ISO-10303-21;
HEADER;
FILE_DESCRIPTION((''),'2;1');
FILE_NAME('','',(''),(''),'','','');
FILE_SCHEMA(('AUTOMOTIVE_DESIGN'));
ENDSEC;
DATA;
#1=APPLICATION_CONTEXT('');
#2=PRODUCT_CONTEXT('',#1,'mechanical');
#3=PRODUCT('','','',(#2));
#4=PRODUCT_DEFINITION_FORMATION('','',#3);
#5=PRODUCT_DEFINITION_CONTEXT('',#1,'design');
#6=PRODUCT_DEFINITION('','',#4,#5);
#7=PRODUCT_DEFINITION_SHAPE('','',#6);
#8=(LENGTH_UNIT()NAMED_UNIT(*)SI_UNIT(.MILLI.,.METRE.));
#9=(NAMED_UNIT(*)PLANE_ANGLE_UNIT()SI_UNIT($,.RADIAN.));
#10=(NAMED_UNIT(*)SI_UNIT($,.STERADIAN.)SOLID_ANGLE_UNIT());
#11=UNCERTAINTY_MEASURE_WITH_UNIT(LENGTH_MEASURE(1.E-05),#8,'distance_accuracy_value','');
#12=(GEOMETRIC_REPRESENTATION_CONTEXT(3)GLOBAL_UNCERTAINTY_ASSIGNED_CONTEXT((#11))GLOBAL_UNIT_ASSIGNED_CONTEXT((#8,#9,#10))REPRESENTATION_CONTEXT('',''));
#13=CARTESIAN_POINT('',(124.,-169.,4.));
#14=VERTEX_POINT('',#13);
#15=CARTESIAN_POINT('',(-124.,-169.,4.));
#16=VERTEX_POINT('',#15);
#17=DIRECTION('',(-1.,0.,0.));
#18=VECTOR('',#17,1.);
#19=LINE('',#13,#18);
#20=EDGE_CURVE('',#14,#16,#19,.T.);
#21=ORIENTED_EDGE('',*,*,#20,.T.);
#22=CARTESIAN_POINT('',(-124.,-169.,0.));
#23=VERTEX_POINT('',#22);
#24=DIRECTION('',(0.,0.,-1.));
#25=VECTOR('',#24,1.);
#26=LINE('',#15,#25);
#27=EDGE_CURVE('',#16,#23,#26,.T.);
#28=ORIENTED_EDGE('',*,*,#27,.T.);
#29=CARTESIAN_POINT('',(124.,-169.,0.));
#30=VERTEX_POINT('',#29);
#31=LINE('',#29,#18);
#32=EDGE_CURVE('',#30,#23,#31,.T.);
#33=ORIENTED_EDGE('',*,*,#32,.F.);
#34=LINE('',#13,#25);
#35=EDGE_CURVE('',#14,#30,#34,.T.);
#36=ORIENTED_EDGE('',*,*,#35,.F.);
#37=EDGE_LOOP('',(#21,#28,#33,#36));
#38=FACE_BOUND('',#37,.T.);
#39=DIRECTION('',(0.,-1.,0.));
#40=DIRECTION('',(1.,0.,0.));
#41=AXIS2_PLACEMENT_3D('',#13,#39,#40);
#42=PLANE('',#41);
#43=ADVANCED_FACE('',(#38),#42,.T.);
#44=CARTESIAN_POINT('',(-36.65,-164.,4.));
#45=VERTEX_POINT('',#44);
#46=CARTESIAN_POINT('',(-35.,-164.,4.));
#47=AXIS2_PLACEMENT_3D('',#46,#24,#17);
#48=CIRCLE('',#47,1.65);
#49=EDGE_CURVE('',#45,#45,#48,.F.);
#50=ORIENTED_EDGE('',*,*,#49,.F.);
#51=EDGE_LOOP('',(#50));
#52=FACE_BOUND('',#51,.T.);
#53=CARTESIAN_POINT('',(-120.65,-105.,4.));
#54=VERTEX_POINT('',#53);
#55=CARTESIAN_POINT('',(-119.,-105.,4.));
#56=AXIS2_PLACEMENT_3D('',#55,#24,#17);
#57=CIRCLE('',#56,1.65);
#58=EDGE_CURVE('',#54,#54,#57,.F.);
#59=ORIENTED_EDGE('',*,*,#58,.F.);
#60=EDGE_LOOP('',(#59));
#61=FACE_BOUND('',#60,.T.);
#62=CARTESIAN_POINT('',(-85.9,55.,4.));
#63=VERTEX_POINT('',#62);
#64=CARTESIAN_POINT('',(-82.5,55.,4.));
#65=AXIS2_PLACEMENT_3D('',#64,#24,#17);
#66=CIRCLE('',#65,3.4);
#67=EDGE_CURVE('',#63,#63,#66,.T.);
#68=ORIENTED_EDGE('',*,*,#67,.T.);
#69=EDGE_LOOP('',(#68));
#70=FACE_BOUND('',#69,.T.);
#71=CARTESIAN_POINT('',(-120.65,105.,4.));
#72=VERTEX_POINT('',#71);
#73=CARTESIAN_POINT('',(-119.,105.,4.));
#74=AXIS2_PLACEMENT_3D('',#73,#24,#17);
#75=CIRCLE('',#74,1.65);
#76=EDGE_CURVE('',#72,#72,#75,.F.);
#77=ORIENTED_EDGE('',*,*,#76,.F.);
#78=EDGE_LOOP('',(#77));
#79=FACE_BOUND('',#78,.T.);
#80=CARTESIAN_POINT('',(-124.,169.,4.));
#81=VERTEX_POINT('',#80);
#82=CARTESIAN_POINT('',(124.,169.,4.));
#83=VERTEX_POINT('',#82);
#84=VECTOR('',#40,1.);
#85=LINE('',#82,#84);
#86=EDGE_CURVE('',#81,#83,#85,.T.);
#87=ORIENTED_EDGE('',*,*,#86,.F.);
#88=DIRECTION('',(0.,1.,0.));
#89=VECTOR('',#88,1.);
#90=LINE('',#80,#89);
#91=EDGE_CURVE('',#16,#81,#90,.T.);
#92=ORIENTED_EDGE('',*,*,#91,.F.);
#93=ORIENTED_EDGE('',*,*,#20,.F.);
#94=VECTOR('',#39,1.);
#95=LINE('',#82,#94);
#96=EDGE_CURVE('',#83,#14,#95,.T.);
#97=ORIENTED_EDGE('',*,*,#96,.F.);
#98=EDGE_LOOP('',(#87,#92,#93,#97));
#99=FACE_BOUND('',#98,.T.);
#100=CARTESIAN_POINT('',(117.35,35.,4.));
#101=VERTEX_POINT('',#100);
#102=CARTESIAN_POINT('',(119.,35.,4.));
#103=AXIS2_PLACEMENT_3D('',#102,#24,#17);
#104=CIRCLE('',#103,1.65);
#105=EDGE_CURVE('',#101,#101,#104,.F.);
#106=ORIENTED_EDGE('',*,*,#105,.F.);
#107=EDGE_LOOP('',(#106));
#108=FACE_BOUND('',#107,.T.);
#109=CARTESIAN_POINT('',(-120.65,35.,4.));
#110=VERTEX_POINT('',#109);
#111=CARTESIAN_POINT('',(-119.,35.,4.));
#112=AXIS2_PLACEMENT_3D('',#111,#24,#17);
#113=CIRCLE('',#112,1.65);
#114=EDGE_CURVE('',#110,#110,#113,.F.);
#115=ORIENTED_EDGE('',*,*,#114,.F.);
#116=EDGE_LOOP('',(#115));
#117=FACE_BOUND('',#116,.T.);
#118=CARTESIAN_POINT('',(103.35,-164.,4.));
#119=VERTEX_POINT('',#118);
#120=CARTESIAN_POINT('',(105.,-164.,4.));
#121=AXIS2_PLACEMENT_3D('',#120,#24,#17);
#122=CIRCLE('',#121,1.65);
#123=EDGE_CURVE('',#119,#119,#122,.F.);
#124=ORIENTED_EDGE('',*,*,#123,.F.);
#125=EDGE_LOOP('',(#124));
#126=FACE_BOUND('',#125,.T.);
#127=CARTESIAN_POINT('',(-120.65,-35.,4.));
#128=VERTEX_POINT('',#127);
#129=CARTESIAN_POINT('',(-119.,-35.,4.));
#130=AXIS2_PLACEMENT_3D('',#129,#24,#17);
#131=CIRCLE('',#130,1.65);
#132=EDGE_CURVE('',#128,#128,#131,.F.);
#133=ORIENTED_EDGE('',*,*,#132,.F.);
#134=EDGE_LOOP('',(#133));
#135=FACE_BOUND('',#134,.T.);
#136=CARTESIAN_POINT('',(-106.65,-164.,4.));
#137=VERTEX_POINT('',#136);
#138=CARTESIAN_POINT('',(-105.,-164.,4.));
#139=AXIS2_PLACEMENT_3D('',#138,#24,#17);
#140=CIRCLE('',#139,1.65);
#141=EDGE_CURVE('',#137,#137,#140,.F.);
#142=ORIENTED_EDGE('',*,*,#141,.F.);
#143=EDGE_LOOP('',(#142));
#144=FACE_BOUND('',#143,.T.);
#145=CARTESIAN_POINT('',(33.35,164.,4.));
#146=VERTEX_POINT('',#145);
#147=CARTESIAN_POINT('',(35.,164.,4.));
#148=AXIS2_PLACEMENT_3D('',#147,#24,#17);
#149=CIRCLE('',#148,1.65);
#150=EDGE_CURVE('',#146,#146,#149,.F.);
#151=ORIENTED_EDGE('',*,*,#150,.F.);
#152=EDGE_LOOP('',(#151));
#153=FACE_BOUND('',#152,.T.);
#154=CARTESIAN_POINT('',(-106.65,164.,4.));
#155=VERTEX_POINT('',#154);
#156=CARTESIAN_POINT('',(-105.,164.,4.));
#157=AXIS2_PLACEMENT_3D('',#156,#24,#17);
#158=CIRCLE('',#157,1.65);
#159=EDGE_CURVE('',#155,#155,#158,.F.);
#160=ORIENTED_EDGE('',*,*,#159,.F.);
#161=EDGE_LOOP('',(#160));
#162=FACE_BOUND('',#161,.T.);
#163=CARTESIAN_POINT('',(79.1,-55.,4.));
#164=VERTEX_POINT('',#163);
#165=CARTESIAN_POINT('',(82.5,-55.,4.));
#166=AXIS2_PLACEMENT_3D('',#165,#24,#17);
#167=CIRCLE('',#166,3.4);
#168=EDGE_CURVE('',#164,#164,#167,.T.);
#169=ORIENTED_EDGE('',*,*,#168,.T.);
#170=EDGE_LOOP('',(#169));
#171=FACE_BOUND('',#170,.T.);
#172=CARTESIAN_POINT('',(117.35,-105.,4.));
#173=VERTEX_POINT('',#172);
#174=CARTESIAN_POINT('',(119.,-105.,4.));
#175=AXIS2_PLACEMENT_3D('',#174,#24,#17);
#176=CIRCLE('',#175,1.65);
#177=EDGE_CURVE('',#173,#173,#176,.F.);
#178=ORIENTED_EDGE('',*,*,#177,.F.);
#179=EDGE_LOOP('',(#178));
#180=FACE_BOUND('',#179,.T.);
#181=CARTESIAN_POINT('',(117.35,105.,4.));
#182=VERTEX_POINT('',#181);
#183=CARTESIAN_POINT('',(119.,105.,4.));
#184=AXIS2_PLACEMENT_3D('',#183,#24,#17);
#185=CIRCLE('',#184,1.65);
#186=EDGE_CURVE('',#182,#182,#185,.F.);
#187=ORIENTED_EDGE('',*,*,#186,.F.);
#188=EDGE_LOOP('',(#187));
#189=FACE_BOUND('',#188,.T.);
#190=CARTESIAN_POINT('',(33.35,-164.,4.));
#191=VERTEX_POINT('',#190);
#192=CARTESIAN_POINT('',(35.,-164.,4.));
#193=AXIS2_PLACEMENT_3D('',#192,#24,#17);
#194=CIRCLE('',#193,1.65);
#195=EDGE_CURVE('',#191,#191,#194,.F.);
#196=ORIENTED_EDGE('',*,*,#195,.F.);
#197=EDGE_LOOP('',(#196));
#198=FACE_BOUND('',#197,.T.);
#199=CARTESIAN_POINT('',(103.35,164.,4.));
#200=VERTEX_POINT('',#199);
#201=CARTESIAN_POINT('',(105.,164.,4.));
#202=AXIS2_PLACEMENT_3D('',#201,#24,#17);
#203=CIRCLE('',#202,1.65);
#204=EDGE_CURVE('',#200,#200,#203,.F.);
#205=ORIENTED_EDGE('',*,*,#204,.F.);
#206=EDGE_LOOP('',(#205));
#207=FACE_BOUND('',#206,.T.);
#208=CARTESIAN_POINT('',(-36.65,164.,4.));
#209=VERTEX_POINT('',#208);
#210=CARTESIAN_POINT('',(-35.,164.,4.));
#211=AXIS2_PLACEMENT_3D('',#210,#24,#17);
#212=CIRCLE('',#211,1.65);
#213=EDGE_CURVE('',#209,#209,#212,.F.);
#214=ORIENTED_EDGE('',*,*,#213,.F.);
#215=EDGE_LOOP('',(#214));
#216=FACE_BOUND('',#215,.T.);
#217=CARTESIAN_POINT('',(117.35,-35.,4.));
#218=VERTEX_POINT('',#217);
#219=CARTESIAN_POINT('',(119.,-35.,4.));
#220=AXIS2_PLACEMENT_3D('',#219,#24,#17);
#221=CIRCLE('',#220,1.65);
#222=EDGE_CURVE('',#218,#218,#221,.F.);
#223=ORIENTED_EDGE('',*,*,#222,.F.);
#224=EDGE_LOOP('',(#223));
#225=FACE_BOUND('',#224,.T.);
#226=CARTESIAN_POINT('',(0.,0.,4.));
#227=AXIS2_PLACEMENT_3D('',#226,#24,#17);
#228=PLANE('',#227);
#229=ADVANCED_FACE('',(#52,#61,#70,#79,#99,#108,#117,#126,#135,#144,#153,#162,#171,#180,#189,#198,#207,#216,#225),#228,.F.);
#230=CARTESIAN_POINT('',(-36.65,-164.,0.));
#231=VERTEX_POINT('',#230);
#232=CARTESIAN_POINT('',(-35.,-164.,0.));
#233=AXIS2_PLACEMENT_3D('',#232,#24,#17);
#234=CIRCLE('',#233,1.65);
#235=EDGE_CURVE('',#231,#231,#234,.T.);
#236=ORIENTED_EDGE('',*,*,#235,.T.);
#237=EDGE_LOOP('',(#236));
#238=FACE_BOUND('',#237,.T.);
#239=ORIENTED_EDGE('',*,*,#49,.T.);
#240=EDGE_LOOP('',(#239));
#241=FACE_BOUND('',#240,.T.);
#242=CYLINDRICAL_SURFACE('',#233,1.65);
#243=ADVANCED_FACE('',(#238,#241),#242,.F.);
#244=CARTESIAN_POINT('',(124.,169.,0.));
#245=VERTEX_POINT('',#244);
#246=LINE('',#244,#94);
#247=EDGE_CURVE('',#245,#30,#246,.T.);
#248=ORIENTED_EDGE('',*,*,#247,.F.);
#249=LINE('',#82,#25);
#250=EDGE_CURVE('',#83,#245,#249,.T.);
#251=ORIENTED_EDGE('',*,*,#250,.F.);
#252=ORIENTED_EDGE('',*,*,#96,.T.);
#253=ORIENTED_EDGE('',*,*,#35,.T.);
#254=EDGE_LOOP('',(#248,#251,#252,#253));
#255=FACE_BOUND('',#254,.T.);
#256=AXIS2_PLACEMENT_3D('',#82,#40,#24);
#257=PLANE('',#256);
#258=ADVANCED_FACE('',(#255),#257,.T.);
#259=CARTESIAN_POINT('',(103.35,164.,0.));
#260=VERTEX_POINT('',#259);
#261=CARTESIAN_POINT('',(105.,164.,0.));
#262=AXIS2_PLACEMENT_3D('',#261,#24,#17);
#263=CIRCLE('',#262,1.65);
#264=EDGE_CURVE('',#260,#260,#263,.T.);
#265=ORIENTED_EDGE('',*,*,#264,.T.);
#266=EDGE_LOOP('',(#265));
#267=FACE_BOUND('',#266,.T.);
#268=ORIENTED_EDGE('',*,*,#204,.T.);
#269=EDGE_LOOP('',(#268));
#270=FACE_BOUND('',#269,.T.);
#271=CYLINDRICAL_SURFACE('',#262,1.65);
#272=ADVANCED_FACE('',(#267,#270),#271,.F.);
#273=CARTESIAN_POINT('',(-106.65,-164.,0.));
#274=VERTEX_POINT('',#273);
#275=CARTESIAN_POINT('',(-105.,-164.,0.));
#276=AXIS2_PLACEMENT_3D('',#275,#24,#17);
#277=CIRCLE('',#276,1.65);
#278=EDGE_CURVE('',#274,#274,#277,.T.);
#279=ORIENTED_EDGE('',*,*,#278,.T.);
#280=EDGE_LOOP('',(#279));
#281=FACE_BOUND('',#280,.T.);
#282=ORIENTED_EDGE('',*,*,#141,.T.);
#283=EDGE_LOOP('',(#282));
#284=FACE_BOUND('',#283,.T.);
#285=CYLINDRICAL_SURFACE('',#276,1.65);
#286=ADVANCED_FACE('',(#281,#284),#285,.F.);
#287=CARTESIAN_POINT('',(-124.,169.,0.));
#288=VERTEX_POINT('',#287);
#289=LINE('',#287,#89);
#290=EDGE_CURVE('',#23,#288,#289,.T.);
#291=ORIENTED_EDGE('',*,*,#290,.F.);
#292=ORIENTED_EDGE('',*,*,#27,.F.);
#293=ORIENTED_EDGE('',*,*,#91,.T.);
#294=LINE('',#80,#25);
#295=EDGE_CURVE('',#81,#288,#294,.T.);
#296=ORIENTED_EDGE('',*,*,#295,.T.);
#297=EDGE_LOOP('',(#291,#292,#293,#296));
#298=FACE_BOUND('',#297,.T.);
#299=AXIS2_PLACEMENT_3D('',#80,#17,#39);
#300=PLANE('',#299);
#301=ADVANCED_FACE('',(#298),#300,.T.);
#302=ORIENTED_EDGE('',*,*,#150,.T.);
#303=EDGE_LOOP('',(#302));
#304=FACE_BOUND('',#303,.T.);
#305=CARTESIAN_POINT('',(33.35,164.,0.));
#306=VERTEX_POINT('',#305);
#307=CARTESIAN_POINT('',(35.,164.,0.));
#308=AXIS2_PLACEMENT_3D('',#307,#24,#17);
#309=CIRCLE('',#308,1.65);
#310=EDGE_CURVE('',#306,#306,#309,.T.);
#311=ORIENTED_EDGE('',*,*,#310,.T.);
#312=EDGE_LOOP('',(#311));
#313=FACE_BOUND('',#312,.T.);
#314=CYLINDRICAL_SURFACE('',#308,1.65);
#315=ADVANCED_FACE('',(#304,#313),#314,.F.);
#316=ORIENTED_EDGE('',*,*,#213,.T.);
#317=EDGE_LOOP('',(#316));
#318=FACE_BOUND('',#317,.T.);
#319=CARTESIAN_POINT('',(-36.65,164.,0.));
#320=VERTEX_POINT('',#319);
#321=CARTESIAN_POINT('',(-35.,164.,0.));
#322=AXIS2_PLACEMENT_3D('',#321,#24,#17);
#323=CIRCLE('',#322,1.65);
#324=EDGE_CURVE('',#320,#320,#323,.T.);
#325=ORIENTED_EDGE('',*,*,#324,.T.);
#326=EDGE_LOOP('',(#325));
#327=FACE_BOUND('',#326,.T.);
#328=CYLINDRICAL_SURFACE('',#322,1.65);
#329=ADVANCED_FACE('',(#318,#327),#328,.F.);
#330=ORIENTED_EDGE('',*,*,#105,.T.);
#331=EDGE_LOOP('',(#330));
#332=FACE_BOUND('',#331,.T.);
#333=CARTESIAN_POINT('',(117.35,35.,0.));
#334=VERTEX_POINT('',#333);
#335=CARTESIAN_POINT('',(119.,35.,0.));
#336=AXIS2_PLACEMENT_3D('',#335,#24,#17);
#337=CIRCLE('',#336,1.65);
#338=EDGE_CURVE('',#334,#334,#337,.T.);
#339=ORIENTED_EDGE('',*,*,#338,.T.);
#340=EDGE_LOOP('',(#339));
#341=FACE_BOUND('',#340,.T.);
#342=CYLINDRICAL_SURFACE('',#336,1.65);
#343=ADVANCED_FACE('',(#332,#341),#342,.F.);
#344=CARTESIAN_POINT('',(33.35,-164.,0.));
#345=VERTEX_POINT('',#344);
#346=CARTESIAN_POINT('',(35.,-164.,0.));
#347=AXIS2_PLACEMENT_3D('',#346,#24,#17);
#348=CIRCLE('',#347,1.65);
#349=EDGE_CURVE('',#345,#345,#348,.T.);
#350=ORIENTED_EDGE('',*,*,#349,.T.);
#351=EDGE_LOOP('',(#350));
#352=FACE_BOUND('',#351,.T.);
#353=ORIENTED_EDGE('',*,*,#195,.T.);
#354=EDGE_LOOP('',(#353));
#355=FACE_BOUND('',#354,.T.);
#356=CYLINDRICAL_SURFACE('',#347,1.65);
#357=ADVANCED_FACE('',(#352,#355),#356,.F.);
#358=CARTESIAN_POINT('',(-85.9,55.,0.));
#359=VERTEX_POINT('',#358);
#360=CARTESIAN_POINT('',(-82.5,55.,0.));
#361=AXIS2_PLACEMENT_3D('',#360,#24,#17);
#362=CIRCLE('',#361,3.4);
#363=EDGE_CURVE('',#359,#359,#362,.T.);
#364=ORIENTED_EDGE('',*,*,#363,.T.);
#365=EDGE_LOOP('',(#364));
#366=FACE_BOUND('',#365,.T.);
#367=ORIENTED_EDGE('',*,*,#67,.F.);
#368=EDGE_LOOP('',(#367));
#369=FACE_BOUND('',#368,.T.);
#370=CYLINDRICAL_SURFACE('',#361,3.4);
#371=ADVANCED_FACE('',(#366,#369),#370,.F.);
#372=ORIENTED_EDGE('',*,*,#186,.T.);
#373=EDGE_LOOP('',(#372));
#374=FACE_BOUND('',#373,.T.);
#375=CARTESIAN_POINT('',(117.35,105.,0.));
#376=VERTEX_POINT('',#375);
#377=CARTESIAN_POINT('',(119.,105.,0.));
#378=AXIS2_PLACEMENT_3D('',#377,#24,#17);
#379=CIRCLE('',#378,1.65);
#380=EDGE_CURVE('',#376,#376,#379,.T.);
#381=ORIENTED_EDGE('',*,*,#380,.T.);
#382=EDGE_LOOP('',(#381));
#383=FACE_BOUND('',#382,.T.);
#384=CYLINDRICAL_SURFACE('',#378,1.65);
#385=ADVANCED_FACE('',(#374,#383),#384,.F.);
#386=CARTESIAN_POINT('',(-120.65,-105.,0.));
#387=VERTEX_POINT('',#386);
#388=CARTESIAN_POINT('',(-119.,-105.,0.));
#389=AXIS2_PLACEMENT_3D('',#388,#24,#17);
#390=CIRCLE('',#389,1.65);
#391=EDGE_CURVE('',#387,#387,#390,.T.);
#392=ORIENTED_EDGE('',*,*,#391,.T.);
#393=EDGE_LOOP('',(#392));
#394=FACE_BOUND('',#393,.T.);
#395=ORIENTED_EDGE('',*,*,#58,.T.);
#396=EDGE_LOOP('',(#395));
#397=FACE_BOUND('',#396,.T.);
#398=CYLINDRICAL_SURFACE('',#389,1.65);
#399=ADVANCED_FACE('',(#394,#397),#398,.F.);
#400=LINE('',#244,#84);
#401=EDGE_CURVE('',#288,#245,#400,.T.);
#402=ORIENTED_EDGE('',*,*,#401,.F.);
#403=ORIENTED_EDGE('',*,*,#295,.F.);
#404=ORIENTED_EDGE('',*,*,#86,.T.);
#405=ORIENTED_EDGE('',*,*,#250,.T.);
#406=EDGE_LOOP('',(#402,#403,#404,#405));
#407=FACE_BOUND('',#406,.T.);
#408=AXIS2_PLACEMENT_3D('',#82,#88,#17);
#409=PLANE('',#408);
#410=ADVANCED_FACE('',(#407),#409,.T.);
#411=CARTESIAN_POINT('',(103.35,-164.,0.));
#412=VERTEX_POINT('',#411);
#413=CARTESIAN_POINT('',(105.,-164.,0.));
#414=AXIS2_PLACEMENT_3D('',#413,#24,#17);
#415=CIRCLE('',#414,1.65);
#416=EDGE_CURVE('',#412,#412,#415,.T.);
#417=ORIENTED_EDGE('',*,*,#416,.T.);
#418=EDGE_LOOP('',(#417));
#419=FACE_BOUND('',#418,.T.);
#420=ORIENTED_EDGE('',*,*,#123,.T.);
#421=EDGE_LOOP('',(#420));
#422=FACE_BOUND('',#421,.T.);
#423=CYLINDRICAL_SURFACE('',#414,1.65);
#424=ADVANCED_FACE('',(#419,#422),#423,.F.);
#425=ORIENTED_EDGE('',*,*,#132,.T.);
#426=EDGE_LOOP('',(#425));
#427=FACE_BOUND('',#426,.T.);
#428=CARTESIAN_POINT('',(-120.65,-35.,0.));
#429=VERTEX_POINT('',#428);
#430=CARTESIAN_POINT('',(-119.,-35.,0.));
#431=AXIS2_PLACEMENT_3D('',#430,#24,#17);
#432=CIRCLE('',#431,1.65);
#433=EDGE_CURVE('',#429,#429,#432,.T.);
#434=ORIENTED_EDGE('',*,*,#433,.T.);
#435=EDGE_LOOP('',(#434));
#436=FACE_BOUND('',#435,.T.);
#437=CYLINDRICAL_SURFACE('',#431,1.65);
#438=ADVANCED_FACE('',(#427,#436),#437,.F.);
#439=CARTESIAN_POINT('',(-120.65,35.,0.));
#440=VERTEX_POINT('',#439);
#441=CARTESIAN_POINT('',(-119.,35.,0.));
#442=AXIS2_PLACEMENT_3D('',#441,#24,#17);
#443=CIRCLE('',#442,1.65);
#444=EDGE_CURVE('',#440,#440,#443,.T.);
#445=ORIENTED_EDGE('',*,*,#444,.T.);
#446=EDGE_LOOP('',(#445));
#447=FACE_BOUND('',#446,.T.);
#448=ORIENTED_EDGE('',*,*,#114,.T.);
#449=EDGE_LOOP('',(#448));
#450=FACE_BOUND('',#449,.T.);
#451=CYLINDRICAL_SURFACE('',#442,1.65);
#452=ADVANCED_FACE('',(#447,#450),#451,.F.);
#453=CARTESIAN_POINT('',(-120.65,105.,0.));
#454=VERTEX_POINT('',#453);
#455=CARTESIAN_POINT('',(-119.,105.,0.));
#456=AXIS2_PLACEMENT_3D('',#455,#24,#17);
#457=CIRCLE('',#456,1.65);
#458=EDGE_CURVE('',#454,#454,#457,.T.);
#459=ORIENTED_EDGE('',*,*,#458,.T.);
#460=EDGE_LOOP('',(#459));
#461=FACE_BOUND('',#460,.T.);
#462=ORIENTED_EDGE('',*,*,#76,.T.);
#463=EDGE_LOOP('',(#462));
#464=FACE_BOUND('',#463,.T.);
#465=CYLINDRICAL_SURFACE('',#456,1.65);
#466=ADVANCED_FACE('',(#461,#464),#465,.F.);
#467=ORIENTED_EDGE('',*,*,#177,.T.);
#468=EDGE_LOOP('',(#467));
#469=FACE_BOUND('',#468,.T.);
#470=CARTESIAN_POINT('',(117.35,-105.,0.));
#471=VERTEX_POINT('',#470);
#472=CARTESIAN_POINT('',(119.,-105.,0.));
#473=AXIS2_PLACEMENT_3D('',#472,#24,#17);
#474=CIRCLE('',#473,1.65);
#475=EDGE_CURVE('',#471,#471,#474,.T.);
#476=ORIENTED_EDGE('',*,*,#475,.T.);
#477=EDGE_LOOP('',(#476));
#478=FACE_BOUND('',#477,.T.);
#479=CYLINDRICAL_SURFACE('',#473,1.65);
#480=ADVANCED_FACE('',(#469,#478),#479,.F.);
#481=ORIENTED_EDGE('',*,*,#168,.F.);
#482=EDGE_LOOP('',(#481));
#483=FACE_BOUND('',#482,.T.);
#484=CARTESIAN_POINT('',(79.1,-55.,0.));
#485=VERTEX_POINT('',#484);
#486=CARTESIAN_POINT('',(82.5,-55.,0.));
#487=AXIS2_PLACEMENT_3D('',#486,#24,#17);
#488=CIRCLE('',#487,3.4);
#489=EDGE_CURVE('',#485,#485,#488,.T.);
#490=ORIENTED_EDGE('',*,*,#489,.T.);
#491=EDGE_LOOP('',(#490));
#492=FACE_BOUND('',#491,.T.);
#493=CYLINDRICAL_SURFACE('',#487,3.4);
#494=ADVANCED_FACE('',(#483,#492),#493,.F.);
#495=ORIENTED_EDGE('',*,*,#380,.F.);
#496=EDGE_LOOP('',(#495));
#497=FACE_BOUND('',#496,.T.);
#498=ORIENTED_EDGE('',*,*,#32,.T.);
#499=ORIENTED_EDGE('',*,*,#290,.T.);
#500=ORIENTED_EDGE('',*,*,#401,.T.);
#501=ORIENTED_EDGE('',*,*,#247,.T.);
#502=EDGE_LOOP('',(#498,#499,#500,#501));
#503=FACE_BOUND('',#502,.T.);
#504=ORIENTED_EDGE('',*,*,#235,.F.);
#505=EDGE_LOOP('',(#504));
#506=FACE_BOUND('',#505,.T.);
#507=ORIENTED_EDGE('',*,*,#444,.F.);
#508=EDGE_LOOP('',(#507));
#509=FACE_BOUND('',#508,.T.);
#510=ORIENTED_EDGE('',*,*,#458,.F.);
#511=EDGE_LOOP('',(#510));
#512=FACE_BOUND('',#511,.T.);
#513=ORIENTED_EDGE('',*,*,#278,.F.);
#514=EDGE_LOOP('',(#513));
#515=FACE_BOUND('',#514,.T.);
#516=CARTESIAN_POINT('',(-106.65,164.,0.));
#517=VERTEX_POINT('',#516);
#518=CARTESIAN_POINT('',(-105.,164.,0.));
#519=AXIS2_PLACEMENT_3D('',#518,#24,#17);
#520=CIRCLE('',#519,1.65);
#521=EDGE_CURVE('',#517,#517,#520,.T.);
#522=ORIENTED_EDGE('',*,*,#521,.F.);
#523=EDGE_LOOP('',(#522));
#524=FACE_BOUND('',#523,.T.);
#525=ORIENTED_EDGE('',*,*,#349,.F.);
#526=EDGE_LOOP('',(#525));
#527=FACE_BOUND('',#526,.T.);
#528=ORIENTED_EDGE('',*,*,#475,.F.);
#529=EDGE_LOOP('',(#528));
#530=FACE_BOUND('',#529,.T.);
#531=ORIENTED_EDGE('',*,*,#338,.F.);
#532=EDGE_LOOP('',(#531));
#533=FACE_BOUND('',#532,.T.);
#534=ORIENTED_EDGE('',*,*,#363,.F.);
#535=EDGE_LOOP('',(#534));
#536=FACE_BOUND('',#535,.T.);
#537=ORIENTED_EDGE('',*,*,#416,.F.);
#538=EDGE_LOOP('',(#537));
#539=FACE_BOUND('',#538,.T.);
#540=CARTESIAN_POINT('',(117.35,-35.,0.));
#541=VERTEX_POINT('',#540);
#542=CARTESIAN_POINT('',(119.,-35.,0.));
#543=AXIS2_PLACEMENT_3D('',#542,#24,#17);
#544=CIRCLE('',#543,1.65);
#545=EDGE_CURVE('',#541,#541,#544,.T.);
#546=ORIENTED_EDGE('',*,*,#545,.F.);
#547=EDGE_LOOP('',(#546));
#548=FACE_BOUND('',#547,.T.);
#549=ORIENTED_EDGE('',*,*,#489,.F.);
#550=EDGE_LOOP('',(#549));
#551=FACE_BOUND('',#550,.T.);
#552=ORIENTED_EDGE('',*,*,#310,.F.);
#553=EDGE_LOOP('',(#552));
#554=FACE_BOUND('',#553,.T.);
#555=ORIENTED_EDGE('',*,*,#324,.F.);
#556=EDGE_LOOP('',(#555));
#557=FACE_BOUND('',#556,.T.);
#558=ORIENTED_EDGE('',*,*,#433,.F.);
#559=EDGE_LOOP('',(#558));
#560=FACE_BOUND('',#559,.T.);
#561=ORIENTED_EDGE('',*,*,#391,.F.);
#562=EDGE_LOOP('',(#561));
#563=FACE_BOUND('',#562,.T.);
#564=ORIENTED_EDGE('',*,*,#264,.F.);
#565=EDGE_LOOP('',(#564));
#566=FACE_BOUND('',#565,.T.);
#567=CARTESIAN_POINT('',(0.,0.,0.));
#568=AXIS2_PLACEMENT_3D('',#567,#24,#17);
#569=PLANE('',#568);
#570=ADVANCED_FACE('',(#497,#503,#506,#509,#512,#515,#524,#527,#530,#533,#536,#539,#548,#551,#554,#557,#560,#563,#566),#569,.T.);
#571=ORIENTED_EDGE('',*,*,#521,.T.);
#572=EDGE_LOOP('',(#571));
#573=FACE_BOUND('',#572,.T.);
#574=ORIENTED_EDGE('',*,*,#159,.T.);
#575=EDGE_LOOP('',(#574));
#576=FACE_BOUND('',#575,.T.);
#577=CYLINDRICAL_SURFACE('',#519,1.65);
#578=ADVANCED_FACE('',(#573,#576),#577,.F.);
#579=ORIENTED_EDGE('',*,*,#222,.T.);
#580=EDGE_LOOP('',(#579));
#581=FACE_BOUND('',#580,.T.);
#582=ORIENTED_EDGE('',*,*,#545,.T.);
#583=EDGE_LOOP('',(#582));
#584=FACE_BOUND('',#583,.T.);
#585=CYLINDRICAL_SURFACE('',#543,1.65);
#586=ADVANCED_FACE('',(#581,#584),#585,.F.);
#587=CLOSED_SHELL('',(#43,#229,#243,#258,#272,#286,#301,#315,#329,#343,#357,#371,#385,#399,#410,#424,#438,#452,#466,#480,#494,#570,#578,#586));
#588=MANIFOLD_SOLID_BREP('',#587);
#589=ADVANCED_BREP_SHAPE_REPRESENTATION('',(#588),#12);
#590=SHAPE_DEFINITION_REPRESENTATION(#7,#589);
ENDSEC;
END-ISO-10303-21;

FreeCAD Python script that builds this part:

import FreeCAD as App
import Part
import Sketcher

V = App.Vector
Q = App.Units.Quantity


def edges_at(feature, points):
    """Names of the edges that pass closest to the given points."""
    edges = feature.Shape.Edges
    near = lambda p: min(range(len(edges)), key=lambda i: edges[i].distToShape(Part.Vertex(*p))[0])
    return sorted({f"Edge{near(p) + 1}" for p in points})

doc = App.newDocument("Part")
body = doc.addObject("PartDesign::Body", "Body")

# Sketch on XY plane
sketch1 = doc.addObject("Sketcher::SketchObject", "Sketch")
body.addObject(sketch1)
sketch1.AttachmentSupport = (doc.XY_Plane, [""])
sketch1.MapMode = "FlatFace"
sketch1.addGeometry(Part.LineSegment(V(-130, 175, 0), V(-130, -175, 0)), False)
sketch1.addGeometry(Part.LineSegment(V(-130, -175, 0), V(130, -175, 0)), False)
sketch1.addGeometry(Part.LineSegment(V(130, -175, 0), V(130, 175, 0)), False)
sketch1.addGeometry(Part.LineSegment(V(130, 175, 0), V(-130, 175, 0)), False)
sketch1.addConstraint(Sketcher.Constraint("Coincident", 0, 2, 1, 1))
sketch1.addConstraint(Sketcher.Constraint("Coincident", 1, 2, 2, 1))
sketch1.addConstraint(Sketcher.Constraint("Coincident", 2, 2, 3, 1))
sketch1.addConstraint(Sketcher.Constraint("Coincident", 3, 2, 0, 1))
sketch1.addConstraint(Sketcher.Constraint("Vertical", 0))
sketch1.addConstraint(Sketcher.Constraint("Horizontal", 1))
sketch1.addConstraint(Sketcher.Constraint("Vertical", 2))
sketch1.addConstraint(Sketcher.Constraint("Horizontal", 3))
sketch1.addConstraint(Sketcher.Constraint("Symmetric", 0, 2, 2, 2, -1, 1))
sketch1.addConstraint(Sketcher.Constraint("DistanceX", 1, 1, 1, 2, Q("260 mm")))
sketch1.addConstraint(Sketcher.Constraint("DistanceY", 0, 2, 0, 1, Q("350 mm")))
pad1 = doc.addObject("PartDesign::Pad", "Pad")
body.addObject(pad1)
pad1.Profile = sketch1
pad1.Length = 58
doc.recompute()

fillet = doc.addObject("PartDesign::Fillet", "Fillet")
body.addObject(fillet)
fillet.Base = (pad1, edges_at(pad1, [
    (130, 0, 58),
    (0, 175, 58),
    (-130, 0, 58),
    (0, -175, 58),
]))
fillet.Radius = 54

# Sketch on XY plane
sketch2 = doc.addObject("Sketcher::SketchObject", "Sketch001")
body.addObject(sketch2)
sketch2.AttachmentSupport = (doc.XY_Plane, [""])
sketch2.MapMode = "FlatFace"
sketch2.addGeometry(Part.LineSegment(V(130, 175, 0), V(130, -175, 0)), False)
sketch2.addGeometry(Part.LineSegment(V(130, -175, 0), V(-130, -175, 0)), False)
sketch2.addGeometry(Part.LineSegment(V(-130, -175, 0), V(-130, 175, 0)), False)
sketch2.addGeometry(Part.LineSegment(V(-130, 175, 0), V(130, 175, 0)), False)
sketch2.addGeometry(Part.LineSegment(V(-124, -169, 0), V(124, -169, 0)), False)
sketch2.addGeometry(Part.LineSegment(V(124, -169, 0), V(124, 169, 0)), False)
sketch2.addGeometry(Part.LineSegment(V(124, 169, 0), V(-124, 169, 0)), False)
sketch2.addGeometry(Part.LineSegment(V(-124, 169, 0), V(-124, -169, 0)), False)
sketch2.addConstraint(Sketcher.Constraint("Coincident", 0, 2, 1, 1))
sketch2.addConstraint(Sketcher.Constraint("Coincident", 1, 2, 2, 1))
sketch2.addConstraint(Sketcher.Constraint("Coincident", 2, 2, 3, 1))
sketch2.addConstraint(Sketcher.Constraint("Coincident", 3, 2, 0, 1))
sketch2.addConstraint(Sketcher.Constraint("Coincident", 4, 2, 5, 1))
sketch2.addConstraint(Sketcher.Constraint("Coincident", 5, 2, 6, 1))
sketch2.addConstraint(Sketcher.Constraint("Coincident", 6, 2, 7, 1))
sketch2.addConstraint(Sketcher.Constraint("Coincident", 7, 2, 4, 1))
sketch2.addConstraint(Sketcher.Constraint("Vertical", 0))
sketch2.addConstraint(Sketcher.Constraint("Horizontal", 1))
sketch2.addConstraint(Sketcher.Constraint("Vertical", 2))
sketch2.addConstraint(Sketcher.Constraint("Horizontal", 3))
sketch2.addConstraint(Sketcher.Constraint("Horizontal", 4))
sketch2.addConstraint(Sketcher.Constraint("Vertical", 5))
sketch2.addConstraint(Sketcher.Constraint("Horizontal", 6))
sketch2.addConstraint(Sketcher.Constraint("Vertical", 7))
sketch2.addConstraint(Sketcher.Constraint("Symmetric", 0, 2, 2, 2, -1, 1))
sketch2.addConstraint(Sketcher.Constraint("Symmetric", 4, 2, 6, 2, -1, 1))
sketch2.addConstraint(Sketcher.Constraint("DistanceX", 1, 2, 1, 1, Q("260 mm")))
sketch2.addConstraint(Sketcher.Constraint("DistanceX", 4, 1, 4, 2, Q("248 mm")))
sketch2.addConstraint(Sketcher.Constraint("DistanceY", 0, 2, 0, 1, Q("350 mm")))
sketch2.addConstraint(Sketcher.Constraint("DistanceY", 5, 1, 5, 2, Q("338 mm")))
pocket1 = doc.addObject("PartDesign::Pocket", "Pocket")
body.addObject(pocket1)
pocket1.Profile = sketch2
pocket1.Length = 4
pocket1.Reversed = True

# Sketch on YZ plane
sketch3 = doc.addObject("Sketcher::SketchObject", "Sketch002")
body.addObject(sketch3)
sketch3.AttachmentSupport = (doc.YZ_Plane, [""])
sketch3.MapMode = "FlatFace"
sketch3.AttachmentOffset = App.Placement(V(0, 0, 105), App.Rotation())
sketch3.addGeometry(Part.LineSegment(V(164, 12.5, 0), V(164, 0, 0)), False)
sketch3.addGeometry(Part.LineSegment(V(164, 0, 0), V(165.7, 0, 0)), False)
sketch3.addGeometry(Part.LineSegment(V(165.7, 0, 0), V(165.7, 11.5, 0)), False)
sketch3.addGeometry(Part.LineSegment(V(165.7, 11.5, 0), V(164, 12.5, 0)), False)
sketch3.addGeometry(Part.LineSegment(V(164, 0, 0), V(164, 12.5, 0)), True)  # axis
sketch3.addConstraint(Sketcher.Constraint("Coincident", 0, 2, 1, 1))
sketch3.addConstraint(Sketcher.Constraint("Coincident", 1, 2, 2, 1))
sketch3.addConstraint(Sketcher.Constraint("Coincident", 2, 2, 3, 1))
sketch3.addConstraint(Sketcher.Constraint("Coincident", 3, 2, 0, 1))
sketch3.addConstraint(Sketcher.Constraint("Vertical", 0))
sketch3.addConstraint(Sketcher.Constraint("Horizontal", 1))
sketch3.addConstraint(Sketcher.Constraint("Vertical", 2))
sketch3.addConstraint(Sketcher.Constraint("Vertical", 4))
sketch3.addConstraint(Sketcher.Constraint("Coincident", 4, 1, 0, 2))
sketch3.addConstraint(Sketcher.Constraint("PointOnObject", 0, 2, -1))
sketch3.addConstraint(Sketcher.Constraint("Equal", 0, 4))
sketch3.addConstraint(Sketcher.Constraint("Angle", 3, Q("149 deg")))
sketch3.addConstraint(Sketcher.Constraint("DistanceY", 2, 1, 2, 2, Q("11.5 mm")))
sketch3.addConstraint(Sketcher.Constraint("DistanceX", -1, 1, 0, 2, Q("164 mm")))
sketch3.addConstraint(Sketcher.Constraint("DistanceX", 1, 1, 1, 2, Q("1.65 mm")))
groove = doc.addObject("PartDesign::Groove", "Groove")
body.addObject(groove)
groove.Profile = sketch3
groove.ReferenceAxis = (sketch3, ["Axis0"])
groove.Angle = 360
doc.recompute()

linearpattern = doc.addObject("PartDesign::LinearPattern", "LinearPattern")
body.addObject(linearpattern)
linearpattern.Originals = [groove]
linearpattern.Direction = (doc.X_Axis, [""])
linearpattern.Mode = "offset"
linearpattern.Offset = 70
linearpattern.Occurrences = 2
linearpattern.Reversed = True
body.Tip = linearpattern
doc.recompute()

datumline = doc.addObject("PartDesign::Line", "DatumLine")
body.addObject(datumline)
datumline.Placement = App.Placement(V(0, 0, 0), App.Rotation(V(0, 0, 1), V(0.230877292, -0.972982875, 0)))
linearpattern2 = doc.addObject("PartDesign::LinearPattern", "LinearPattern001")
body.addObject(linearpattern2)
linearpattern2.Originals = [groove]
linearpattern2.Direction = (datumline, [""])
linearpattern2.Mode = "offset"
linearpattern2.Offset = 60.638272
linearpattern2.Occurrences = 2
body.Tip = linearpattern2
doc.recompute()

datumline2 = doc.addObject("PartDesign::Line", "DatumLine001")
body.addObject(datumline2)
datumline2.Placement = App.Placement(V(0, 0, 0), App.Rotation(V(0, 0, 1), V(0.107893599, -0.994162447, 0)))
linearpattern3 = doc.addObject("PartDesign::LinearPattern", "LinearPattern002")
body.addObject(linearpattern3)
linearpattern3.Originals = [groove]
linearpattern3.Direction = (datumline2, [""])
linearpattern3.Mode = "offset"
linearpattern3.Offset = 129.757466
linearpattern3.Occurrences = 2
body.Tip = linearpattern3
doc.recompute()

mirrored = doc.addObject("PartDesign::Mirrored", "Mirrored")
body.addObject(mirrored)
mirrored.Originals = [groove]
mirrored.MirrorPlane = (doc.XZ_Plane, [""])
body.Tip = mirrored

# Sketch on YZ plane
sketch4 = doc.addObject("Sketcher::SketchObject", "Sketch003")
body.addObject(sketch4)
sketch4.AttachmentSupport = (doc.YZ_Plane, [""])
sketch4.MapMode = "FlatFace"
sketch4.AttachmentOffset = App.Placement(V(0, 0, 35), App.Rotation())
sketch4.addGeometry(Part.LineSegment(V(-164, 0, 0), V(-164, 12.5, 0)), False)
sketch4.addGeometry(Part.LineSegment(V(-164, 12.5, 0), V(-165.7, 11.5, 0)), False)
sketch4.addGeometry(Part.LineSegment(V(-165.7, 11.5, 0), V(-165.7, 0, 0)), False)
sketch4.addGeometry(Part.LineSegment(V(-165.7, 0, 0), V(-164, 0, 0)), False)
sketch4.addGeometry(Part.LineSegment(V(-164, 12.5, 0), V(-164, 0, 0)), True)  # axis
sketch4.addConstraint(Sketcher.Constraint("Coincident", 0, 2, 1, 1))
sketch4.addConstraint(Sketcher.Constraint("Coincident", 1, 2, 2, 1))
sketch4.addConstraint(Sketcher.Constraint("Coincident", 2, 2, 3, 1))
sketch4.addConstraint(Sketcher.Constraint("Coincident", 3, 2, 0, 1))
sketch4.addConstraint(Sketcher.Constraint("Vertical", 0))
sketch4.addConstraint(Sketcher.Constraint("Vertical", 2))
sketch4.addConstraint(Sketcher.Constraint("Horizontal", 3))
sketch4.addConstraint(Sketcher.Constraint("Vertical", 4))
sketch4.addConstraint(Sketcher.Constraint("Coincident", 4, 1, 0, 2))
sketch4.addConstraint(Sketcher.Constraint("PointOnObject", 2, 2, -1))
sketch4.addConstraint(Sketcher.Constraint("PointOnObject", 4, 2, -1))
sketch4.addConstraint(Sketcher.Constraint("Angle", 1, Q("-149 deg")))
sketch4.addConstraint(Sketcher.Constraint("DistanceY", 2, 2, 2, 1, Q("11.5 mm")))
sketch4.addConstraint(Sketcher.Constraint("DistanceX", 0, 2, -1, 1, Q("164 mm")))
sketch4.addConstraint(Sketcher.Constraint("DistanceX", 3, 1, 3, 2, Q("1.65 mm")))
groove2 = doc.addObject("PartDesign::Groove", "Groove001")
body.addObject(groove2)
groove2.Profile = sketch4
groove2.ReferenceAxis = (sketch4, ["Axis0"])
groove2.Angle = 360

# Sketch on YZ plane
sketch5 = doc.addObject("Sketcher::SketchObject", "Sketch004")
body.addObject(sketch5)
sketch5.AttachmentSupport = (doc.YZ_Plane, [""])
sketch5.MapMode = "FlatFace"
sketch5.AttachmentOffset = App.Placement(V(0, 0, 119), App.Rotation())
sketch5.addGeometry(Part.LineSegment(V(-105, 0, 0), V(-105, 12.5, 0)), False)
sketch5.addGeometry(Part.LineSegment(V(-105, 12.5, 0), V(-106.7, 11.5, 0)), False)
sketch5.addGeometry(Part.LineSegment(V(-106.7, 11.5, 0), V(-106.7, 0, 0)), False)
sketch5.addGeometry(Part.LineSegment(V(-106.7, 0, 0), V(-105, 0, 0)), False)
sketch5.addGeometry(Part.LineSegment(V(-105, 12.5, 0), V(-105, 0, 0)), True)  # axis
sketch5.addConstraint(Sketcher.Constraint("Coincident", 0, 2, 1, 1))
sketch5.addConstraint(Sketcher.Constraint("Coincident", 1, 2, 2, 1))
sketch5.addConstraint(Sketcher.Constraint("Coincident", 2, 2, 3, 1))
sketch5.addConstraint(Sketcher.Constraint("Coincident", 3, 2, 0, 1))
sketch5.addConstraint(Sketcher.Constraint("Vertical", 0))
sketch5.addConstraint(Sketcher.Constraint("Vertical", 2))
sketch5.addConstraint(Sketcher.Constraint("Horizontal", 3))
sketch5.addConstraint(Sketcher.Constraint("Vertical", 4))
sketch5.addConstraint(Sketcher.Constraint("Coincident", 4, 1, 0, 2))
sketch5.addConstraint(Sketcher.Constraint("PointOnObject", 2, 2, -1))
sketch5.addConstraint(Sketcher.Constraint("PointOnObject", 4, 2, -1))
sketch5.addConstraint(Sketcher.Constraint("Angle", 1, Q("-149 deg")))
sketch5.addConstraint(Sketcher.Constraint("DistanceY", 2, 2, 2, 1, Q("11.5 mm")))
sketch5.addConstraint(Sketcher.Constraint("DistanceX", 0, 2, -1, 1, Q("105 mm")))
sketch5.addConstraint(Sketcher.Constraint("DistanceX", 3, 1, 3, 2, Q("1.65 mm")))
groove3 = doc.addObject("PartDesign::Groove", "Groove002")
body.addObject(groove3)
groove3.Profile = sketch5
groove3.ReferenceAxis = (sketch5, ["Axis0"])
groove3.Angle = 360

# Sketch on YZ plane
sketch6 = doc.addObject("Sketcher::SketchObject", "Sketch005")
body.addObject(sketch6)
sketch6.AttachmentSupport = (doc.YZ_Plane, [""])
sketch6.MapMode = "FlatFace"
sketch6.AttachmentOffset = App.Placement(V(0, 0, 119), App.Rotation())
sketch6.addGeometry(Part.LineSegment(V(-35, 0, 0), V(-35, 12.5, 0)), False)
sketch6.addGeometry(Part.LineSegment(V(-35, 12.5, 0), V(-36.6, 11.5, 0)), False)
sketch6.addGeometry(Part.LineSegment(V(-36.6, 11.5, 0), V(-36.6, 0, 0)), False)
sketch6.addGeometry(Part.LineSegment(V(-36.6, 0, 0), V(-35, 0, 0)), False)
sketch6.addGeometry(Part.LineSegment(V(-35, 12.5, 0), V(-35, 0, 0)), True)  # axis
sketch6.addConstraint(Sketcher.Constraint("Coincident", 0, 2, 1, 1))
sketch6.addConstraint(Sketcher.Constraint("Coincident", 1, 2, 2, 1))
sketch6.addConstraint(Sketcher.Constraint("Coincident", 2, 2, 3, 1))
sketch6.addConstraint(Sketcher.Constraint("Coincident", 3, 2, 0, 1))
sketch6.addConstraint(Sketcher.Constraint("Vertical", 0))
sketch6.addConstraint(Sketcher.Constraint("Vertical", 2))
sketch6.addConstraint(Sketcher.Constraint("Horizontal", 3))
sketch6.addConstraint(Sketcher.Constraint("Vertical", 4))
sketch6.addConstraint(Sketcher.Constraint("Coincident", 4, 1, 0, 2))
sketch6.addConstraint(Sketcher.Constraint("PointOnObject", 2, 2, -1))
sketch6.addConstraint(Sketcher.Constraint("PointOnObject", 4, 2, -1))
sketch6.addConstraint(Sketcher.Constraint("Angle", 1, Q("-149 deg")))
sketch6.addConstraint(Sketcher.Constraint("DistanceY", 2, 2, 2, 1, Q("11.5 mm")))
sketch6.addConstraint(Sketcher.Constraint("DistanceX", 0, 2, -1, 1, Q("35 mm")))
sketch6.addConstraint(Sketcher.Constraint("DistanceX", 3, 1, 3, 2, Q("1.65 mm")))
groove4 = doc.addObject("PartDesign::Groove", "Groove003")
body.addObject(groove4)
groove4.Profile = sketch6
groove4.ReferenceAxis = (sketch6, ["Axis0"])
groove4.Angle = 360
doc.recompute()

mirrored2 = doc.addObject("PartDesign::Mirrored", "Mirrored001")
body.addObject(mirrored2)
mirrored2.Originals = [groove]
mirrored2.MirrorPlane = (doc.YZ_Plane, [""])
body.Tip = mirrored2

# Sketch on YZ plane
sketch7 = doc.addObject("Sketcher::SketchObject", "Sketch006")
body.addObject(sketch7)
sketch7.AttachmentSupport = (doc.YZ_Plane, [""])
sketch7.MapMode = "FlatFace"
sketch7.AttachmentOffset = App.Placement(V(0, 0, -35), App.Rotation())
sketch7.addGeometry(Part.LineSegment(V(164, 0, 0), V(164, 12.5, 0)), False)
sketch7.addGeometry(Part.LineSegment(V(164, 12.5, 0), V(165.7, 11.5, 0)), False)
sketch7.addGeometry(Part.LineSegment(V(165.7, 11.5, 0), V(165.7, 0, 0)), False)
sketch7.addGeometry(Part.LineSegment(V(165.7, 0, 0), V(164, 0, 0)), False)
sketch7.addGeometry(Part.LineSegment(V(164, 12.5, 0), V(164, 0, 0)), True)  # axis
sketch7.addConstraint(Sketcher.Constraint("Coincident", 0, 2, 1, 1))
sketch7.addConstraint(Sketcher.Constraint("Coincident", 1, 2, 2, 1))
sketch7.addConstraint(Sketcher.Constraint("Coincident", 2, 2, 3, 1))
sketch7.addConstraint(Sketcher.Constraint("Coincident", 3, 2, 0, 1))
sketch7.addConstraint(Sketcher.Constraint("Vertical", 0))
sketch7.addConstraint(Sketcher.Constraint("Vertical", 2))
sketch7.addConstraint(Sketcher.Constraint("Horizontal", 3))
sketch7.addConstraint(Sketcher.Constraint("Vertical", 4))
sketch7.addConstraint(Sketcher.Constraint("Coincident", 4, 1, 0, 2))
sketch7.addConstraint(Sketcher.Constraint("PointOnObject", 2, 2, -1))
sketch7.addConstraint(Sketcher.Constraint("PointOnObject", 4, 2, -1))
sketch7.addConstraint(Sketcher.Constraint("Angle", 1, Q("-31 deg")))
sketch7.addConstraint(Sketcher.Constraint("DistanceY", 2, 2, 2, 1, Q("11.5 mm")))
sketch7.addConstraint(Sketcher.Constraint("DistanceX", -1, 1, 0, 2, Q("164 mm")))
sketch7.addConstraint(Sketcher.Constraint("DistanceX", 3, 2, 3, 1, Q("1.65 mm")))
groove5 = doc.addObject("PartDesign::Groove", "Groove004")
body.addObject(groove5)
groove5.Profile = sketch7
groove5.ReferenceAxis = (sketch7, ["Axis0"])
groove5.Angle = 360

# Sketch on YZ plane
sketch8 = doc.addObject("Sketcher::SketchObject", "Sketch007")
body.addObject(sketch8)
sketch8.AttachmentSupport = (doc.YZ_Plane, [""])
sketch8.MapMode = "FlatFace"
sketch8.AttachmentOffset = App.Placement(V(0, 0, -119), App.Rotation())
sketch8.addGeometry(Part.LineSegment(V(105, 0, 0), V(105, 12.5, 0)), False)
sketch8.addGeometry(Part.LineSegment(V(105, 12.5, 0), V(106.7, 11.5, 0)), False)
sketch8.addGeometry(Part.LineSegment(V(106.7, 11.5, 0), V(106.7, 0, 0)), False)
sketch8.addGeometry(Part.LineSegment(V(106.7, 0, 0), V(105, 0, 0)), False)
sketch8.addGeometry(Part.LineSegment(V(105, 12.5, 0), V(105, 0, 0)), True)  # axis
sketch8.addConstraint(Sketcher.Constraint("Coincident", 0, 2, 1, 1))
sketch8.addConstraint(Sketcher.Constraint("Coincident", 1, 2, 2, 1))
sketch8.addConstraint(Sketcher.Constraint("Coincident", 2, 2, 3, 1))
sketch8.addConstraint(Sketcher.Constraint("Coincident", 3, 2, 0, 1))
sketch8.addConstraint(Sketcher.Constraint("Vertical", 0))
sketch8.addConstraint(Sketcher.Constraint("Vertical", 2))
sketch8.addConstraint(Sketcher.Constraint("Horizontal", 3))
sketch8.addConstraint(Sketcher.Constraint("Vertical", 4))
sketch8.addConstraint(Sketcher.Constraint("Coincident", 4, 1, 0, 2))
sketch8.addConstraint(Sketcher.Constraint("PointOnObject", 2, 2, -1))
sketch8.addConstraint(Sketcher.Constraint("PointOnObject", 4, 2, -1))
sketch8.addConstraint(Sketcher.Constraint("Angle", 1, Q("-31 deg")))
sketch8.addConstraint(Sketcher.Constraint("DistanceY", 2, 2, 2, 1, Q("11.5 mm")))
sketch8.addConstraint(Sketcher.Constraint("DistanceX", -1, 1, 0, 2, Q("105 mm")))
sketch8.addConstraint(Sketcher.Constraint("DistanceX", 3, 2, 3, 1, Q("1.65 mm")))
groove6 = doc.addObject("PartDesign::Groove", "Groove005")
body.addObject(groove6)
groove6.Profile = sketch8
groove6.ReferenceAxis = (sketch8, ["Axis0"])
groove6.Angle = 360

# Sketch on YZ plane
sketch9 = doc.addObject("Sketcher::SketchObject", "Sketch008")
body.addObject(sketch9)
sketch9.AttachmentSupport = (doc.YZ_Plane, [""])
sketch9.MapMode = "FlatFace"
sketch9.AttachmentOffset = App.Placement(V(0, 0, -119), App.Rotation())
sketch9.addGeometry(Part.LineSegment(V(35, 0, 0), V(35, 12.5, 0)), False)
sketch9.addGeometry(Part.LineSegment(V(35, 12.5, 0), V(36.6, 11.5, 0)), False)
sketch9.addGeometry(Part.LineSegment(V(36.6, 11.5, 0), V(36.6, 0, 0)), False)
sketch9.addGeometry(Part.LineSegment(V(36.6, 0, 0), V(35, 0, 0)), False)
sketch9.addGeometry(Part.LineSegment(V(35, 12.5, 0), V(35, 0, 0)), True)  # axis
sketch9.addConstraint(Sketcher.Constraint("Coincident", 0, 2, 1, 1))
sketch9.addConstraint(Sketcher.Constraint("Coincident", 1, 2, 2, 1))
sketch9.addConstraint(Sketcher.Constraint("Coincident", 2, 2, 3, 1))
sketch9.addConstraint(Sketcher.Constraint("Coincident", 3, 2, 0, 1))
sketch9.addConstraint(Sketcher.Constraint("Vertical", 0))
sketch9.addConstraint(Sketcher.Constraint("Vertical", 2))
sketch9.addConstraint(Sketcher.Constraint("Horizontal", 3))
sketch9.addConstraint(Sketcher.Constraint("Vertical", 4))
sketch9.addConstraint(Sketcher.Constraint("Coincident", 4, 1, 0, 2))
sketch9.addConstraint(Sketcher.Constraint("PointOnObject", 2, 2, -1))
sketch9.addConstraint(Sketcher.Constraint("PointOnObject", 4, 2, -1))
sketch9.addConstraint(Sketcher.Constraint("Angle", 1, Q("-31 deg")))
sketch9.addConstraint(Sketcher.Constraint("DistanceY", 2, 2, 2, 1, Q("11.5 mm")))
sketch9.addConstraint(Sketcher.Constraint("DistanceX", -1, 1, 0, 2, Q("35 mm")))
sketch9.addConstraint(Sketcher.Constraint("DistanceX", 3, 2, 3, 1, Q("1.65 mm")))
groove7 = doc.addObject("PartDesign::Groove", "Groove006")
body.addObject(groove7)
groove7.Profile = sketch9
groove7.ReferenceAxis = (sketch9, ["Axis0"])
groove7.Angle = 360

# Sketch on YZ plane
sketch10 = doc.addObject("Sketcher::SketchObject", "Sketch009")
body.addObject(sketch10)
sketch10.AttachmentSupport = (doc.YZ_Plane, [""])
sketch10.MapMode = "FlatFace"
sketch10.AttachmentOffset = App.Placement(V(0, 0, -105), App.Rotation())
sketch10.addGeometry(Part.LineSegment(V(-164, 12.5, 0), V(-164, 0, 0)), False)
sketch10.addGeometry(Part.LineSegment(V(-164, 0, 0), V(-165.7, 0, 0)), False)
sketch10.addGeometry(Part.LineSegment(V(-165.7, 0, 0), V(-165.7, 11.5, 0)), False)
sketch10.addGeometry(Part.LineSegment(V(-165.7, 11.5, 0), V(-164, 12.5, 0)), False)
sketch10.addGeometry(Part.LineSegment(V(-164, 0, 0), V(-164, 12.5, 0)), True)  # axis
sketch10.addConstraint(Sketcher.Constraint("Coincident", 0, 2, 1, 1))
sketch10.addConstraint(Sketcher.Constraint("Coincident", 1, 2, 2, 1))
sketch10.addConstraint(Sketcher.Constraint("Coincident", 2, 2, 3, 1))
sketch10.addConstraint(Sketcher.Constraint("Coincident", 3, 2, 0, 1))
sketch10.addConstraint(Sketcher.Constraint("Vertical", 0))
sketch10.addConstraint(Sketcher.Constraint("Horizontal", 1))
sketch10.addConstraint(Sketcher.Constraint("Vertical", 2))
sketch10.addConstraint(Sketcher.Constraint("Vertical", 4))
sketch10.addConstraint(Sketcher.Constraint("Coincident", 4, 1, 0, 2))
sketch10.addConstraint(Sketcher.Constraint("PointOnObject", 0, 2, -1))
sketch10.addConstraint(Sketcher.Constraint("Equal", 0, 4))
sketch10.addConstraint(Sketcher.Constraint("Angle", 3, Q("31 deg")))
sketch10.addConstraint(Sketcher.Constraint("DistanceY", 2, 1, 2, 2, Q("11.5 mm")))
sketch10.addConstraint(Sketcher.Constraint("DistanceX", 0, 2, -1, 1, Q("164 mm")))
sketch10.addConstraint(Sketcher.Constraint("DistanceX", 1, 2, 1, 1, Q("1.65 mm")))
groove8 = doc.addObject("PartDesign::Groove", "Groove007")
body.addObject(groove8)
groove8.Profile = sketch10
groove8.ReferenceAxis = (sketch10, ["Axis0"])
groove8.Angle = 360

# Sketch on YZ plane
sketch11 = doc.addObject("Sketcher::SketchObject", "Sketch010")
body.addObject(sketch11)
sketch11.AttachmentSupport = (doc.YZ_Plane, [""])
sketch11.MapMode = "FlatFace"
sketch11.AttachmentOffset = App.Placement(V(0, 0, -35), App.Rotation())
sketch11.addGeometry(Part.LineSegment(V(-164, 12.5, 0), V(-164, 0, 0)), False)
sketch11.addGeometry(Part.LineSegment(V(-164, 0, 0), V(-165.7, 0, 0)), False)
sketch11.addGeometry(Part.LineSegment(V(-165.7, 0, 0), V(-165.7, 11.5, 0)), False)
sketch11.addGeometry(Part.LineSegment(V(-165.7, 11.5, 0), V(-164, 12.5, 0)), False)
sketch11.addGeometry(Part.LineSegment(V(-164, 0, 0), V(-164, 12.5, 0)), True)  # axis
sketch11.addConstraint(Sketcher.Constraint("Coincident", 0, 2, 1, 1))
sketch11.addConstraint(Sketcher.Constraint("Coincident", 1, 2, 2, 1))
sketch11.addConstraint(Sketcher.Constraint("Coincident", 2, 2, 3, 1))
sketch11.addConstraint(Sketcher.Constraint("Coincident", 3, 2, 0, 1))
sketch11.addConstraint(Sketcher.Constraint("Vertical", 0))
sketch11.addConstraint(Sketcher.Constraint("Horizontal", 1))
sketch11.addConstraint(Sketcher.Constraint("Vertical", 2))
sketch11.addConstraint(Sketcher.Constraint("Vertical", 4))
sketch11.addConstraint(Sketcher.Constraint("Coincident", 4, 1, 0, 2))
sketch11.addConstraint(Sketcher.Constraint("PointOnObject", 0, 2, -1))
sketch11.addConstraint(Sketcher.Constraint("Equal", 0, 4))
sketch11.addConstraint(Sketcher.Constraint("Angle", 3, Q("31 deg")))
sketch11.addConstraint(Sketcher.Constraint("DistanceY", 2, 1, 2, 2, Q("11.5 mm")))
sketch11.addConstraint(Sketcher.Constraint("DistanceX", 0, 2, -1, 1, Q("164 mm")))
sketch11.addConstraint(Sketcher.Constraint("DistanceX", 1, 2, 1, 1, Q("1.65 mm")))
groove9 = doc.addObject("PartDesign::Groove", "Groove008")
body.addObject(groove9)
groove9.Profile = sketch11
groove9.ReferenceAxis = (sketch11, ["Axis0"])
groove9.Angle = 360

# Sketch on YZ plane
sketch12 = doc.addObject("Sketcher::SketchObject", "Sketch011")
body.addObject(sketch12)
sketch12.AttachmentSupport = (doc.YZ_Plane, [""])
sketch12.MapMode = "FlatFace"
sketch12.AttachmentOffset = App.Placement(V(0, 0, -119), App.Rotation())
sketch12.addGeometry(Part.LineSegment(V(-105, 12.5, 0), V(-105, 0, 0)), False)
sketch12.addGeometry(Part.LineSegment(V(-105, 0, 0), V(-106.7, 0, 0)), False)
sketch12.addGeometry(Part.LineSegment(V(-106.7, 0, 0), V(-106.7, 11.5, 0)), False)
sketch12.addGeometry(Part.LineSegment(V(-106.7, 11.5, 0), V(-105, 12.5, 0)), False)
sketch12.addGeometry(Part.LineSegment(V(-105, 0, 0), V(-105, 12.5, 0)), True)  # axis
sketch12.addConstraint(Sketcher.Constraint("Coincident", 0, 2, 1, 1))
sketch12.addConstraint(Sketcher.Constraint("Coincident", 1, 2, 2, 1))
sketch12.addConstraint(Sketcher.Constraint("Coincident", 2, 2, 3, 1))
sketch12.addConstraint(Sketcher.Constraint("Coincident", 3, 2, 0, 1))
sketch12.addConstraint(Sketcher.Constraint("Vertical", 0))
sketch12.addConstraint(Sketcher.Constraint("Horizontal", 1))
sketch12.addConstraint(Sketcher.Constraint("Vertical", 2))
sketch12.addConstraint(Sketcher.Constraint("Vertical", 4))
sketch12.addConstraint(Sketcher.Constraint("Coincident", 4, 1, 0, 2))
sketch12.addConstraint(Sketcher.Constraint("PointOnObject", 0, 2, -1))
sketch12.addConstraint(Sketcher.Constraint("Equal", 0, 4))
sketch12.addConstraint(Sketcher.Constraint("Angle", 3, Q("31 deg")))
sketch12.addConstraint(Sketcher.Constraint("DistanceY", 2, 1, 2, 2, Q("11.5 mm")))
sketch12.addConstraint(Sketcher.Constraint("DistanceX", 0, 2, -1, 1, Q("105 mm")))
sketch12.addConstraint(Sketcher.Constraint("DistanceX", 1, 2, 1, 1, Q("1.65 mm")))
groove10 = doc.addObject("PartDesign::Groove", "Groove009")
body.addObject(groove10)
groove10.Profile = sketch12
groove10.ReferenceAxis = (sketch12, ["Axis0"])
groove10.Angle = 360

# Sketch on YZ plane
sketch13 = doc.addObject("Sketcher::SketchObject", "Sketch012")
body.addObject(sketch13)
sketch13.AttachmentSupport = (doc.YZ_Plane, [""])
sketch13.MapMode = "FlatFace"
sketch13.AttachmentOffset = App.Placement(V(0, 0, -119), App.Rotation())
sketch13.addGeometry(Part.LineSegment(V(-35, 12.5, 0), V(-35, 0, 0)), False)
sketch13.addGeometry(Part.LineSegment(V(-35, 0, 0), V(-36.6, 0, 0)), False)
sketch13.addGeometry(Part.LineSegment(V(-36.6, 0, 0), V(-36.6, 11.5, 0)), False)
sketch13.addGeometry(Part.LineSegment(V(-36.6, 11.5, 0), V(-35, 12.5, 0)), False)
sketch13.addGeometry(Part.LineSegment(V(-35, 0, 0), V(-35, 12.5, 0)), True)  # axis
sketch13.addConstraint(Sketcher.Constraint("Coincident", 0, 2, 1, 1))
sketch13.addConstraint(Sketcher.Constraint("Coincident", 1, 2, 2, 1))
sketch13.addConstraint(Sketcher.Constraint("Coincident", 2, 2, 3, 1))
sketch13.addConstraint(Sketcher.Constraint("Coincident", 3, 2, 0, 1))
sketch13.addConstraint(Sketcher.Constraint("Vertical", 0))
sketch13.addConstraint(Sketcher.Constraint("Horizontal", 1))
sketch13.addConstraint(Sketcher.Constraint("Vertical", 2))
sketch13.addConstraint(Sketcher.Constraint("Vertical", 4))
sketch13.addConstraint(Sketcher.Constraint("Coincident", 4, 1, 0, 2))
sketch13.addConstraint(Sketcher.Constraint("PointOnObject", 0, 2, -1))
sketch13.addConstraint(Sketcher.Constraint("Equal", 0, 4))
sketch13.addConstraint(Sketcher.Constraint("Angle", 3, Q("31 deg")))
sketch13.addConstraint(Sketcher.Constraint("DistanceY", 2, 1, 2, 2, Q("11.5 mm")))
sketch13.addConstraint(Sketcher.Constraint("DistanceX", 0, 2, -1, 1, Q("35 mm")))
sketch13.addConstraint(Sketcher.Constraint("DistanceX", 1, 2, 1, 1, Q("1.65 mm")))
groove11 = doc.addObject("PartDesign::Groove", "Groove010")
body.addObject(groove11)
groove11.Profile = sketch13
groove11.ReferenceAxis = (sketch13, ["Axis0"])
groove11.Angle = 360

# Sketch on XY plane
sketch14 = doc.addObject("Sketcher::SketchObject", "Sketch013")
body.addObject(sketch14)
sketch14.AttachmentSupport = (doc.XY_Plane, [""])
sketch14.MapMode = "FlatFace"
sketch14.AttachmentOffset = App.Placement(V(0, 0, 4), App.Rotation())
sketch14.addGeometry(Part.LineSegment(V(130, 175, 0), V(130, -175, 0)), False)
sketch14.addGeometry(Part.LineSegment(V(130, -175, 0), V(-130, -175, 0)), False)
sketch14.addGeometry(Part.LineSegment(V(-130, -175, 0), V(-130, 175, 0)), False)
sketch14.addGeometry(Part.LineSegment(V(-130, 175, 0), V(130, 175, 0)), False)
sketch14.addConstraint(Sketcher.Constraint("Coincident", 0, 2, 1, 1))
sketch14.addConstraint(Sketcher.Constraint("Coincident", 1, 2, 2, 1))
sketch14.addConstraint(Sketcher.Constraint("Coincident", 2, 2, 3, 1))
sketch14.addConstraint(Sketcher.Constraint("Coincident", 3, 2, 0, 1))
sketch14.addConstraint(Sketcher.Constraint("Vertical", 0))
sketch14.addConstraint(Sketcher.Constraint("Horizontal", 1))
sketch14.addConstraint(Sketcher.Constraint("Vertical", 2))
sketch14.addConstraint(Sketcher.Constraint("Horizontal", 3))
sketch14.addConstraint(Sketcher.Constraint("Symmetric", 0, 2, 2, 2, -1, 1))
sketch14.addConstraint(Sketcher.Constraint("DistanceX", 1, 2, 1, 1, Q("260 mm")))
sketch14.addConstraint(Sketcher.Constraint("DistanceY", 0, 2, 0, 1, Q("350 mm")))
pocket2 = doc.addObject("PartDesign::Pocket", "Pocket001")
body.addObject(pocket2)
pocket2.Profile = sketch14
pocket2.Type = "ThroughAll"
pocket2.Reversed = True

# Sketch on XY plane
sketch15 = doc.addObject("Sketcher::SketchObject", "Sketch014")
body.addObject(sketch15)
sketch15.AttachmentSupport = (doc.XY_Plane, [""])
sketch15.MapMode = "FlatFace"
sketch15.addGeometry(Part.Circle(V(82.5, -55, 0), V(0, 0, 1), 3.4), False)
sketch15.addConstraint(Sketcher.Constraint("Diameter", 0, Q("6.8 mm")))
sketch15.addConstraint(Sketcher.Constraint("DistanceY", 0, 3, -1, 1, Q("55 mm")))
sketch15.addConstraint(Sketcher.Constraint("DistanceX", -1, 1, 0, 3, Q("82.5 mm")))
doc.recompute()
hole = doc.addObject("PartDesign::Hole", "Hole")
body.addObject(hole)
hole.Profile = sketch15
hole.ThreadType = "None"
hole.Diameter = 6.8
hole.DepthType = "ThroughAll"
hole.Reversed = True
doc.recompute()

polarpattern = doc.addObject("PartDesign::PolarPattern", "PolarPattern")
body.addObject(polarpattern)
polarpattern.Originals = [hole]
polarpattern.Axis = (doc.Z_Axis, [""])
polarpattern.Angle = 360
polarpattern.Occurrences = 2
body.Tip = polarpattern

doc.recompute()
